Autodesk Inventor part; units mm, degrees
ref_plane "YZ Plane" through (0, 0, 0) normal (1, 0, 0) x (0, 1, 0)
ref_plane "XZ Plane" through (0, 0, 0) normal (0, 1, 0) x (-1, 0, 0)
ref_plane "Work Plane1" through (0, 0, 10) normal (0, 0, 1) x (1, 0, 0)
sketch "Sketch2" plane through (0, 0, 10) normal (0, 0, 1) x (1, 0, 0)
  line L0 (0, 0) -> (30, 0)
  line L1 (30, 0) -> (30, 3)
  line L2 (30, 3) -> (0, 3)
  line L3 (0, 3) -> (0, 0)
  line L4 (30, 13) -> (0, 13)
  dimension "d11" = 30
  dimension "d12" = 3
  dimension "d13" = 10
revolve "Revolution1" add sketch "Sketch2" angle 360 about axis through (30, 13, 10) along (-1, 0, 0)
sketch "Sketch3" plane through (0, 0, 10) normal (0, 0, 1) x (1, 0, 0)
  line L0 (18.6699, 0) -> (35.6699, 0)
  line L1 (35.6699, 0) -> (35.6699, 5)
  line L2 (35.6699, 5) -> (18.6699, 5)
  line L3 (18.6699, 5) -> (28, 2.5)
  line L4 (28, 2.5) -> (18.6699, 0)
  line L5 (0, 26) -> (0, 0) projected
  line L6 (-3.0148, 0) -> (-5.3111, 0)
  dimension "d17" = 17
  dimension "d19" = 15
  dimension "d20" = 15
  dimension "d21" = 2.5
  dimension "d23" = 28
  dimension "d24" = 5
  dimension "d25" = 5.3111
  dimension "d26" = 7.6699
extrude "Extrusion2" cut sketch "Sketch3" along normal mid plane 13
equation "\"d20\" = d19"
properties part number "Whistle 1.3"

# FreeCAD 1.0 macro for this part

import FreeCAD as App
import Part
import Sketcher

V = App.Vector
Q = App.Units.Quantity


def add_polygon(sketch, points):
    """Adds a closed chain of lines whose ends are joined by coincident constraints."""
    first, n = sketch.GeometryCount, len(points)
    for a, b in zip(points, points[1:] + points[:1]):
        sketch.addGeometry(Part.LineSegment(App.Vector(*a, 0), App.Vector(*b, 0)), False)
    for i in range(n):
        sketch.addConstraint(Sketcher.Constraint("Coincident", first + i, 2, first + (i + 1) % n, 1))

doc = App.newDocument("Part")
body = doc.addObject("PartDesign::Body", "Body")

# Sketch on XY plane
sketch1 = body.newObject("Sketcher::SketchObject", "Sketch")
sketch1.AttachmentSupport = (doc.getObject("XY_Plane"), [""])
sketch1.MapMode = "FlatFace"
sketch1.AttachmentOffset = App.Placement(V(0, 0, 10), App.Rotation())
add_polygon(sketch1, [(0, 3), (0, 0), (30, 0), (30, 3)])  # lines 0-3
sketch1.addGeometry(Part.LineSegment(V(30, 13, 0), V(0, 13, 0)), True)  # axis
sketch1.addConstraint(Sketcher.Constraint("Vertical", 0))
sketch1.addConstraint(Sketcher.Constraint("Horizontal", 1))
sketch1.addConstraint(Sketcher.Constraint("Vertical", 2))
sketch1.addConstraint(Sketcher.Constraint("Horizontal", 3))
sketch1.addConstraint(Sketcher.Constraint("Horizontal", 4))
sketch1.addConstraint(Sketcher.Constraint("Coincident", 0, 2, -1, 1))
sketch1.addConstraint(Sketcher.Constraint("PointOnObject", 4, 2, -2))
sketch1.addConstraint(Sketcher.Constraint("Vertical", 2, 2, 4, 1))
sketch1.addConstraint(Sketcher.Constraint("DistanceX", 1, 1, 1, 2, 30.0))
sketch1.addConstraint(Sketcher.Constraint("DistanceY", 0, 2, 0, 1, 3.0))
sketch1.addConstraint(Sketcher.Constraint("DistanceY", 2, 2, 4, 1, 10.0))
revolution = body.newObject("PartDesign::Revolution", "Revolution")
revolution.Profile = sketch1
revolution.ReferenceAxis = (sketch1, ["Axis0"])
revolution.Angle = 360

# Sketch on XY plane
sketch2 = body.newObject("Sketcher::SketchObject", "Sketch001")
sketch2.AttachmentSupport = (doc.getObject("XY_Plane"), [""])
sketch2.MapMode = "FlatFace"
sketch2.AttachmentOffset = App.Placement(V(0, 0, 10), App.Rotation())
add_polygon(sketch2, [(28, 2), (19, 0), (36, 0), (36, 5), (19, 5)])  # lines 0-4
sketch2.addConstraint(Sketcher.Constraint("Horizontal", 1))
sketch2.addConstraint(Sketcher.Constraint("Vertical", 2))
sketch2.addConstraint(Sketcher.Constraint("Horizontal", 3))
sketch2.addConstraint(Sketcher.Constraint("PointOnObject", 0, 2, -1))
sketch2.addConstraint(Sketcher.Constraint("Vertical", 0, 2, 3, 2))
sketch2.addConstraint(Sketcher.Constraint("Equal", 0, 4))
sketch2.addConstraint(Sketcher.Constraint("DistanceX", 1, 1, 1, 2, 17.0))
sketch2.addConstraint(Sketcher.Constraint("DistanceY", 2, 1, 2, 2, 5.0))
sketch2.addConstraint(Sketcher.Constraint("Angle", 4, Q("-15 deg")))
sketch2.addConstraint(Sketcher.Constraint("DistanceX", -1, 1, 4, 2, 28.0))
pocket1 = body.newObject("PartDesign::Pocket", "Pocket")
pocket1.Profile = sketch2
pocket1.Length = 13
pocket1.Midplane = True

doc.recompute()
